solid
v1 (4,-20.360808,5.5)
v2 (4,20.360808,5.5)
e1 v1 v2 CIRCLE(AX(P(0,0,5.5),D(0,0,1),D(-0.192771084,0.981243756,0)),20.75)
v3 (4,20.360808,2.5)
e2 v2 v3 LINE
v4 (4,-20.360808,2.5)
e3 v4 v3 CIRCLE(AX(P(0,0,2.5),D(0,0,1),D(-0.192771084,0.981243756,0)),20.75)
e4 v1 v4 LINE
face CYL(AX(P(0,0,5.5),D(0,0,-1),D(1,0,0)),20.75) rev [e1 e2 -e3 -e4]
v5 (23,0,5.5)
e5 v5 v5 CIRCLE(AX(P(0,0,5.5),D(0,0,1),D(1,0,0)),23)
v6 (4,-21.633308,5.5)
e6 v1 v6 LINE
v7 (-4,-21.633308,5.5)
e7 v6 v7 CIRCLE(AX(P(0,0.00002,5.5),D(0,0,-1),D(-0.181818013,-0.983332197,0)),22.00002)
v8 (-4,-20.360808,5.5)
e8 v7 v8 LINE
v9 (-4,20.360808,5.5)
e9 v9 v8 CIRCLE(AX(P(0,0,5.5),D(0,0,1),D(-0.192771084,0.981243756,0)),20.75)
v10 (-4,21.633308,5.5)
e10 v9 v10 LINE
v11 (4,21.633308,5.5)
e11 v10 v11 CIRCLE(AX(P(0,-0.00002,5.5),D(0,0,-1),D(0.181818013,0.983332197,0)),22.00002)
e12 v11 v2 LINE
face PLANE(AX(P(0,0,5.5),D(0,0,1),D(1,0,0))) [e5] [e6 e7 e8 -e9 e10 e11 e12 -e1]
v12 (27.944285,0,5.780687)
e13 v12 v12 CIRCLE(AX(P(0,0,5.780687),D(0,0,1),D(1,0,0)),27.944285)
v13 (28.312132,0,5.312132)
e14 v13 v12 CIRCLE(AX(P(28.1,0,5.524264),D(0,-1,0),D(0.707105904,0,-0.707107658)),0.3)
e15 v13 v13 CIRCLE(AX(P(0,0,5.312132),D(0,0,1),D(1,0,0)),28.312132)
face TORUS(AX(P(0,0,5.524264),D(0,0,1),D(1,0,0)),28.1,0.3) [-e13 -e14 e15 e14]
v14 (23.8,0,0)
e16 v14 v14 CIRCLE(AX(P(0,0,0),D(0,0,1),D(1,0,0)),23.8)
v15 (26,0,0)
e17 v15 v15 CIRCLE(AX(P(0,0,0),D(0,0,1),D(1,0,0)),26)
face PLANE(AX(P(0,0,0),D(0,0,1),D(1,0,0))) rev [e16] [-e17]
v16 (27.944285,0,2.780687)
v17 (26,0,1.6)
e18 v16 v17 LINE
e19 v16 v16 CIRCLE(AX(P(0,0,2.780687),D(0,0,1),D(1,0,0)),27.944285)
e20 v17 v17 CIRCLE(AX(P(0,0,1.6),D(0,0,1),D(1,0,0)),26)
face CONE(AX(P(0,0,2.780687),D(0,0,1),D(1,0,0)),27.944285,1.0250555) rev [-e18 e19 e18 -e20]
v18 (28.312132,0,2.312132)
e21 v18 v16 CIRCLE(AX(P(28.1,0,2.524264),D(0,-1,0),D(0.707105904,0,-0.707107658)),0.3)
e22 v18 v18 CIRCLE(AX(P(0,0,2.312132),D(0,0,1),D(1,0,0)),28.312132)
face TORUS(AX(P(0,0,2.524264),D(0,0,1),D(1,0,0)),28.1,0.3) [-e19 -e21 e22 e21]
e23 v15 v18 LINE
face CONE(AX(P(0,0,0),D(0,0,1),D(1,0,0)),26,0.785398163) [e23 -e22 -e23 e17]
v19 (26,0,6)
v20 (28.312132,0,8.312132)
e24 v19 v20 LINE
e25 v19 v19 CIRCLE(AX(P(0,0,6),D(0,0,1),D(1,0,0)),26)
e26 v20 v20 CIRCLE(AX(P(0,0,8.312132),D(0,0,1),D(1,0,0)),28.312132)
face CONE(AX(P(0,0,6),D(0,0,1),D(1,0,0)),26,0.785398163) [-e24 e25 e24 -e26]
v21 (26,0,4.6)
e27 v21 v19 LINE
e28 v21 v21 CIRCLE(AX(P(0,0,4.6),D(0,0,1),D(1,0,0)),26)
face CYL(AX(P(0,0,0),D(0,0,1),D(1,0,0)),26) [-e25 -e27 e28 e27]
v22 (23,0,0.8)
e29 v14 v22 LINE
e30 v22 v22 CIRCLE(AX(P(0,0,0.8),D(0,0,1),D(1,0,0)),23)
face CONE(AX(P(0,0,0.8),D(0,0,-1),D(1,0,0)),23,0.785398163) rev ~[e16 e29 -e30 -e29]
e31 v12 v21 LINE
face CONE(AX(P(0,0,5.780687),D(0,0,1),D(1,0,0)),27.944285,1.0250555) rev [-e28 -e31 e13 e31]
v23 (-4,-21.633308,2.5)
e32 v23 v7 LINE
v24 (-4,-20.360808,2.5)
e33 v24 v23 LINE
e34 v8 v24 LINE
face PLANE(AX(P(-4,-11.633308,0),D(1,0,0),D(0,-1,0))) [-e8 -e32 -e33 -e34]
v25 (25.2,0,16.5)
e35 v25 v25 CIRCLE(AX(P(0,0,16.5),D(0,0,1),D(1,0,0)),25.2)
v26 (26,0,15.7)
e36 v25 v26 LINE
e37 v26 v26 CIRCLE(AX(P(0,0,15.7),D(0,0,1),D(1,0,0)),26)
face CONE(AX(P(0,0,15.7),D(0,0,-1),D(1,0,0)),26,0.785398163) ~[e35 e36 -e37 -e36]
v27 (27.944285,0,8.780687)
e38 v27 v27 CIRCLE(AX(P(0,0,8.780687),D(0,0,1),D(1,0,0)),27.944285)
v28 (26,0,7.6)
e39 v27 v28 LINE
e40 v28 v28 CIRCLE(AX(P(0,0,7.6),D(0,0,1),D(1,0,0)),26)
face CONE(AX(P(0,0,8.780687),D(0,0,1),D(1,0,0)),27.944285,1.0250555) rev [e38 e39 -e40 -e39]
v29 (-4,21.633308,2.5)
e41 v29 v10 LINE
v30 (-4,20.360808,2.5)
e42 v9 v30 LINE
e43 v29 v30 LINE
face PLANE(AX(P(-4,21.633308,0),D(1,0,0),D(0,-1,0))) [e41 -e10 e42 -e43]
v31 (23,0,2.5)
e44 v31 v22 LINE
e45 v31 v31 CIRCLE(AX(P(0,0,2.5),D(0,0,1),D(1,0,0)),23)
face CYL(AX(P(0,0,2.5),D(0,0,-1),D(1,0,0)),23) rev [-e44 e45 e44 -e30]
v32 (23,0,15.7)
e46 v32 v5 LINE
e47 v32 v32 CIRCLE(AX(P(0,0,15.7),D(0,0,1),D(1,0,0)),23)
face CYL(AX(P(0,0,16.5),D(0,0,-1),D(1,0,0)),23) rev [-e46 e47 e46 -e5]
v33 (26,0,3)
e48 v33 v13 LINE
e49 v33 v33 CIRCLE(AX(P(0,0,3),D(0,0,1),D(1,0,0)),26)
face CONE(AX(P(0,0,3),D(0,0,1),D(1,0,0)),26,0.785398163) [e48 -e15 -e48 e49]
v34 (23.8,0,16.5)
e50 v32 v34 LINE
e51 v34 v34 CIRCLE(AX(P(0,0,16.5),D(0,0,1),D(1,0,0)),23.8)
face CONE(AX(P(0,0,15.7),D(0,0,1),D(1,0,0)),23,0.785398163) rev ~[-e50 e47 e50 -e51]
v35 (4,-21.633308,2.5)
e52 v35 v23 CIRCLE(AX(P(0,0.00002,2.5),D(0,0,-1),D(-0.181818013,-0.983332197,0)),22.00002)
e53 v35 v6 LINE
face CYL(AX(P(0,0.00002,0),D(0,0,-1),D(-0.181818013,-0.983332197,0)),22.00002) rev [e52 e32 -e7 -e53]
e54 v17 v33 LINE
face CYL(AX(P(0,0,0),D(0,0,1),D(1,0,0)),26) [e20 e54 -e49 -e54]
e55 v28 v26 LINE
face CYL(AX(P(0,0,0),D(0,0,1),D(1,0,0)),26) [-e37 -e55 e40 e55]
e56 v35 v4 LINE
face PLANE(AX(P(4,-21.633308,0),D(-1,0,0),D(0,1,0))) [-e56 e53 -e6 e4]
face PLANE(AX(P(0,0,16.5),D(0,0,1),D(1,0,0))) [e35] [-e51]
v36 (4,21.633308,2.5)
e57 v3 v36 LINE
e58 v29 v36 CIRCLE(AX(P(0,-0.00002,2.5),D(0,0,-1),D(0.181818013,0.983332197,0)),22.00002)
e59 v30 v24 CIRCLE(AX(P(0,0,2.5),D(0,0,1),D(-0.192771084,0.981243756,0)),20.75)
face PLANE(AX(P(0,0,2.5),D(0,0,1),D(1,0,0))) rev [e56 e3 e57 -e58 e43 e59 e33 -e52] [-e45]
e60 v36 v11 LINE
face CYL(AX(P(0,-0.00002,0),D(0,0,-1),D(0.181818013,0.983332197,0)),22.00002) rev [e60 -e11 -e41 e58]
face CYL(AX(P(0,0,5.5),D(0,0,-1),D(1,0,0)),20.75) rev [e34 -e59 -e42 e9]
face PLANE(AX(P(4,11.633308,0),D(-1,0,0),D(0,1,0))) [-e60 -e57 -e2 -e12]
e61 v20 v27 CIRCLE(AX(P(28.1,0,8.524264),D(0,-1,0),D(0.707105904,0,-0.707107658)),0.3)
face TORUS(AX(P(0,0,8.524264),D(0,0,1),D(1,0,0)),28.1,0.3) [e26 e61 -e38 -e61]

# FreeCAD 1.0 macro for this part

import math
import FreeCAD as App
import Part
import Sketcher

V = App.Vector
Q = App.Units.Quantity


def edges_at(feature, points):
    """Names of the edges that pass closest to the given points."""
    edges = feature.Shape.Edges
    near = lambda p: min(range(len(edges)), key=lambda i: edges[i].distToShape(Part.Vertex(*p))[0])
    return sorted({f"Edge{near(p) + 1}" for p in points})


def add_polygon(sketch, points):
    """Adds a closed chain of lines whose ends are joined by coincident constraints."""
    first, n = sketch.GeometryCount, len(points)
    for a, b in zip(points, points[1:] + points[:1]):
        sketch.addGeometry(Part.LineSegment(App.Vector(*a, 0), App.Vector(*b, 0)), False)
    for i in range(n):
        sketch.addConstraint(Sketcher.Constraint("Coincident", first + i, 2, first + (i + 1) % n, 1))

doc = App.newDocument("Part")
body = doc.addObject("PartDesign::Body", "Body")

# Sketch on XZ plane
sketch1 = body.newObject("Sketcher::SketchObject", "Sketch")
sketch1.AttachmentSupport = (doc.getObject("XZ_Plane"), [""])
sketch1.MapMode = "FlatFace"
add_polygon(sketch1, [(20.8, 2.5), (23, 2.5), (23, 0), (26, 0), (26, 16.5), (23, 16.5), (23, 5.5), (20.8, 5.5)])  # lines 0-7
sketch1.addConstraint([
    Sketcher.Constraint("Horizontal", 0),
    Sketcher.Constraint("Vertical", 1),
    Sketcher.Constraint("Horizontal", 2),
    Sketcher.Constraint("Vertical", 3),
    Sketcher.Constraint("Horizontal", 4),
    Sketcher.Constraint("Vertical", 5),
    Sketcher.Constraint("Horizontal", 6),
    Sketcher.Constraint("Vertical", 7),
    Sketcher.Constraint("PointOnObject", 1, 2, -1),
    Sketcher.Constraint("Vertical", 1, 2, 4, 2),
    Sketcher.Constraint("Equal", 4, 7),
    Sketcher.Constraint("DistanceX", 2, 1, 2, 2, 3.0),
    Sketcher.Constraint("DistanceY", 5, 2, 5, 1, 11.0),
    Sketcher.Constraint("DistanceY", 1, 2, 1, 1, 2.5),
    Sketcher.Constraint("DistanceX", -1, 1, 0, 2, 23.0),
    Sketcher.Constraint("DistanceX", 0, 1, 0, 2, 2.25),
])
revolution = body.newObject("PartDesign::Revolution", "Revolution")
revolution.Profile = sketch1
revolution.ReferenceAxis = (sketch1, ["V_Axis"])
revolution.Angle = 360

# Sketch on XY plane
sketch2 = body.newObject("Sketcher::SketchObject", "Sketch001")
sketch2.AttachmentSupport = (doc.getObject("XY_Plane"), [""])
sketch2.MapMode = "FlatFace"
sketch2.addGeometry([
    Part.LineSegment(V(-4, 22, 0), V(-4, 12, 0)),
    Part.LineSegment(V(-4, 12, 0), V(4, 12, 0)),
    Part.LineSegment(V(4, 12, 0), V(4, 22, 0)),
    Part.ArcOfCircle(Part.Circle(V(0, 0, 0), V(0, 0, 1), 22), math.radians(80), math.radians(100)),
], False)
sketch2.addConstraint([
    Sketcher.Constraint("Coincident", 0, 2, 1, 1),
    Sketcher.Constraint("Coincident", 1, 2, 2, 1),
    Sketcher.Constraint("Coincident", 2, 2, 3, 1),
    Sketcher.Constraint("Coincident", 3, 2, 0, 1),
    Sketcher.Constraint("Vertical", 0),
    Sketcher.Constraint("Horizontal", 1),
    Sketcher.Constraint("Vertical", 2),
    Sketcher.Constraint("Symmetric", 2, 2, 3, 2, -2),
    Sketcher.Constraint("DistanceX", 1, 1, 1, 2, 8.0),
    Sketcher.Constraint("DistanceY", 0, 2, 0, 1, 10.0),
    Sketcher.Constraint("Radius", 3, 22.00002),
    Sketcher.Constraint("DistanceY", -1, 1, 0, 2, 11.633308),
])
pocket1 = body.newObject("PartDesign::Pocket", "Pocket")
pocket1.Profile = sketch2
pocket1.Type = "ThroughAll"
pocket1.Reversed = True
doc.recompute()

polarpattern = body.newObject("PartDesign::PolarPattern", "PolarPattern")
polarpattern.Originals = [pocket1]
polarpattern.Axis = (doc.getObject("Z_Axis"), [""])
polarpattern.Angle = 360
polarpattern.Occurrences = 2
body.Tip = polarpattern

# Sketch on XZ plane
sketch3 = body.newObject("Sketcher::SketchObject", "Sketch002")
sketch3.AttachmentSupport = (doc.getObject("XZ_Plane"), [""])
sketch3.MapMode = "FlatFace"
sketch3.addGeometry([
    Part.LineSegment(V(26, 0, 0), V(28.31, 2.31, 0)),
    Part.ArcOfCircle(Part.Circle(V(28.1, 2.52, 0), V(0, 0, 1), 0.3), math.radians(-45), math.radians(121)),
    Part.LineSegment(V(27.94, 2.78, 0), V(26, 1.6, 0)),
    Part.LineSegment(V(26, 1.6, 0), V(26, 0, 0)),
], False)
sketch3.addConstraint([
    Sketcher.Constraint("Tangent", 0, 2, 1, 1),
    Sketcher.Constraint("Tangent", 1, 2, 2, 1),
    Sketcher.Constraint("Coincident", 2, 2, 3, 1),
    Sketcher.Constraint("Coincident", 3, 2, 0, 1),
    Sketcher.Constraint("Vertical", 3),
    Sketcher.Constraint("PointOnObject", 3, 2, -1),
    Sketcher.Constraint("Radius", 1, 0.3),
    Sketcher.Constraint("Angle", 0, Q("45 deg")),
    Sketcher.Constraint("DistanceY", 3, 2, 3, 1, 1.6),
    Sketcher.Constraint("DistanceX", -1, 1, 2, 2, 26.0),
    Sketcher.Constraint("DistanceX", -1, 1, 1, 3, 28.1),
])
revolution2 = body.newObject("PartDesign::Revolution", "Revolution001")
revolution2.Profile = sketch3
revolution2.ReferenceAxis = (sketch3, ["V_Axis"])
revolution2.Angle = 360
doc.recompute()

linearpattern = body.newObject("PartDesign::LinearPattern", "LinearPattern")
linearpattern.Originals = [revolution2]
linearpattern.Direction = (doc.getObject("Z_Axis"), [""])
linearpattern.Mode = "offset"
linearpattern.Offset = 3
linearpattern.Occurrences = 3
body.Tip = linearpattern
doc.recompute()

chamfer = body.newObject("PartDesign::Chamfer", "Chamfer")
chamfer.Base = (linearpattern, edges_at(linearpattern, [(-23, 0, 16.5), (-26, 0, 16.5), (-23, 0, 0)]))
chamfer.Size = 0.8

doc.recompute()
